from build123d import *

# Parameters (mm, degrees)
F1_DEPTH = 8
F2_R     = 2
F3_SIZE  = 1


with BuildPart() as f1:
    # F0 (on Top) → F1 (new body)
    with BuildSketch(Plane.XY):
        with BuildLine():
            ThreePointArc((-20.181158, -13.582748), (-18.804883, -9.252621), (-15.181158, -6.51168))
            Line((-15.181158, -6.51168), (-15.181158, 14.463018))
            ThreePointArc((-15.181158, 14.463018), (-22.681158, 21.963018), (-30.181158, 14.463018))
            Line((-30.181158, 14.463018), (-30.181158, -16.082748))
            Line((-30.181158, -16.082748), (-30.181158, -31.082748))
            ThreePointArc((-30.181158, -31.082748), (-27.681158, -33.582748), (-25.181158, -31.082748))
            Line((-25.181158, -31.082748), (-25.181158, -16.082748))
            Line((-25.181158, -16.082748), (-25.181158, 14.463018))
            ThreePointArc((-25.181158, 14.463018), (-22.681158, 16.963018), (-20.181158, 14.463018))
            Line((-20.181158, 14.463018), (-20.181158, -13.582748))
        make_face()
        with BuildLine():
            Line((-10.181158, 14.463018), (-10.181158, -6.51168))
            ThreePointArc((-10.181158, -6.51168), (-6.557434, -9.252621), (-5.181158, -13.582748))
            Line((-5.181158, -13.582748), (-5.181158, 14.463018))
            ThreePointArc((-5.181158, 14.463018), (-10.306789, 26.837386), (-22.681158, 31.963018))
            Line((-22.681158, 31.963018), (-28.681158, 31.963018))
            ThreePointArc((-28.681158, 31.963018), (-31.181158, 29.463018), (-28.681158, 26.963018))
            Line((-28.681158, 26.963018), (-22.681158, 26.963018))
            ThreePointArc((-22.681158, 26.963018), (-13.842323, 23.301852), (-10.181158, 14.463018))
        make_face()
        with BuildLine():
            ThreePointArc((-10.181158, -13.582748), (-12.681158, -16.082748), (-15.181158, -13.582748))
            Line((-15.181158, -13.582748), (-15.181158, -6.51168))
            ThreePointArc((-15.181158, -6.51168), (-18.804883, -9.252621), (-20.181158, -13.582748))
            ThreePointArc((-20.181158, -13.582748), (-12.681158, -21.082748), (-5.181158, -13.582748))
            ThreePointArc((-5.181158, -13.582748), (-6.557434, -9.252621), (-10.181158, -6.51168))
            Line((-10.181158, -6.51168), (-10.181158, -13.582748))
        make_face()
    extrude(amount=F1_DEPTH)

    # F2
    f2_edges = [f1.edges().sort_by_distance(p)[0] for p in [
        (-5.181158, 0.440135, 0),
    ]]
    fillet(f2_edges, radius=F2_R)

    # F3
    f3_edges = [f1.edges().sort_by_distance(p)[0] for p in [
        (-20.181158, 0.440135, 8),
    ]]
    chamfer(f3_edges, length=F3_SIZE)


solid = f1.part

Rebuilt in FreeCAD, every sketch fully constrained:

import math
import FreeCAD as App
import Part
import Sketcher

V = App.Vector
Q = App.Units.Quantity


def edges_at(feature, points):
    """Names of the edges that pass closest to the given points."""
    edges = feature.Shape.Edges
    near = lambda p: min(range(len(edges)), key=lambda i: edges[i].distToShape(Part.Vertex(*p))[0])
    return sorted({f"Edge{near(p) + 1}" for p in points})

doc = App.newDocument("Part")
params = doc.addObject("Spreadsheet::Sheet", "Params")
for row, (alias, value) in enumerate([
    ("sketch1_radius", "7.5 mm"),
    ("sketch1_width", "6 mm"),
    ("pad1_length", "8 mm"),
    ("fillet_radius", "2 mm"),
    ("chamfer_size", "1 mm"),
], start=1):
    params.set(f"A{row}", alias)
    params.set(f"B{row}", "=" + value)
    params.setAlias(f"B{row}", alias)

body = doc.addObject("PartDesign::Body", "Body")

# Sketch on XY plane
sketch1 = body.newObject("Sketcher::SketchObject", "Sketch")
sketch1.AttachmentSupport = (doc.getObject("XY_Plane"), [""])
sketch1.MapMode = "FlatFace"
sketch1.addGeometry(Part.ArcOfCircle(Part.Circle(V(-22.7, 14.5, 0), V(0, 0, 1), 7.5), math.radians(0), math.radians(180)), False)
sketch1.addGeometry(Part.LineSegment(V(-30.2, 14.5, 0), V(-30.2, -31.1, 0)), False)
sketch1.addGeometry(Part.ArcOfCircle(Part.Circle(V(-27.7, -31.1, 0), V(0, 0, 1), 2.5), math.radians(180), math.radians(360)), False)
sketch1.addGeometry(Part.LineSegment(V(-25.2, -31.1, 0), V(-25.2, 14.5, 0)), False)
sketch1.addGeometry(Part.ArcOfCircle(Part.Circle(V(-22.7, 14.5, 0), V(0, 0, 1), 2.5), math.radians(0), math.radians(180)), False)
sketch1.addGeometry(Part.LineSegment(V(-20.2, 14.5, 0), V(-20.2, -13.6, 0)), False)
sketch1.addGeometry(Part.ArcOfCircle(Part.Circle(V(-12.7, -13.6, 0), V(0, 0, 1), 7.5), math.radians(180), math.radians(360)), False)
sketch1.addGeometry(Part.LineSegment(V(-5.2, -13.6, 0), V(-5.2, 14.5, 0)), False)
sketch1.addGeometry(Part.ArcOfCircle(Part.Circle(V(-22.7, 14.5, 0), V(0, 0, 1), 17.5), math.radians(0), math.radians(90)), False)
sketch1.addGeometry(Part.LineSegment(V(-22.7, 32, 0), V(-28.7, 32, 0)), False)
sketch1.addGeometry(Part.ArcOfCircle(Part.Circle(V(-28.7, 29.5, 0), V(0, 0, 1), 2.5), math.radians(90), math.radians(270)), False)
sketch1.addGeometry(Part.LineSegment(V(-28.7, 27, 0), V(-22.7, 27, 0)), False)
sketch1.addGeometry(Part.ArcOfCircle(Part.Circle(V(-22.7, 14.5, 0), V(0, 0, 1), 12.5), math.radians(0), math.radians(90)), False)
sketch1.addGeometry(Part.LineSegment(V(-10.2, 14.5, 0), V(-10.2, -13.6, 0)), False)
sketch1.addGeometry(Part.ArcOfCircle(Part.Circle(V(-12.7, -13.6, 0), V(0, 0, 1), 2.5), math.radians(180), math.radians(360)), False)
sketch1.addGeometry(Part.LineSegment(V(-15.2, -13.6, 0), V(-15.2, 14.5, 0)), False)
sketch1.addConstraint(Sketcher.Constraint("Tangent", 0, 2, 1, 1))
sketch1.addConstraint(Sketcher.Constraint("Tangent", 1, 2, 2, 1))
sketch1.addConstraint(Sketcher.Constraint("Tangent", 2, 2, 3, 1))
sketch1.addConstraint(Sketcher.Constraint("Tangent", 3, 2, 4, 2))
sketch1.addConstraint(Sketcher.Constraint("Tangent", 4, 1, 5, 1))
sketch1.addConstraint(Sketcher.Constraint("Tangent", 5, 2, 6, 1))
sketch1.addConstraint(Sketcher.Constraint("Tangent", 6, 2, 7, 1))
sketch1.addConstraint(Sketcher.Constraint("Tangent", 7, 2, 8, 1))
sketch1.addConstraint(Sketcher.Constraint("Tangent", 8, 2, 9, 1))
sketch1.addConstraint(Sketcher.Constraint("Tangent", 9, 2, 10, 1))
sketch1.addConstraint(Sketcher.Constraint("Tangent", 10, 2, 11, 1))
sketch1.addConstraint(Sketcher.Constraint("Tangent", 11, 2, 12, 2))
sketch1.addConstraint(Sketcher.Constraint("Tangent", 12, 1, 13, 1))
sketch1.addConstraint(Sketcher.Constraint("Tangent", 13, 2, 14, 2))
sketch1.addConstraint(Sketcher.Constraint("Tangent", 14, 1, 15, 1))
sketch1.addConstraint(Sketcher.Constraint("Tangent", 15, 2, 0, 1))
sketch1.addConstraint(Sketcher.Constraint("Vertical", 1))
sketch1.addConstraint(Sketcher.Constraint("Vertical", 3))
sketch1.addConstraint(Sketcher.Constraint("Vertical", 5))
sketch1.addConstraint(Sketcher.Constraint("Vertical", 7))
sketch1.addConstraint(Sketcher.Constraint("Horizontal", 9))
sketch1.addConstraint(Sketcher.Constraint("Horizontal", 11))
sketch1.addConstraint(Sketcher.Constraint("Vertical", 13))
sketch1.addConstraint(Sketcher.Constraint("Vertical", 15))
sketch1.addConstraint(Sketcher.Constraint("Coincident", 4, 3, 0, 3))
sketch1.addConstraint(Sketcher.Constraint("Coincident", 8, 3, 0, 3))
sketch1.addConstraint(Sketcher.Constraint("Coincident", 12, 3, 0, 3))
sketch1.addConstraint(Sketcher.Constraint("Coincident", 14, 3, 6, 3))
sketch1.addConstraint(Sketcher.Constraint("Equal", 2, 4))
sketch1.addConstraint(Sketcher.Constraint("Equal", 0, 6))
sketch1.addConstraint(Sketcher.Constraint("Radius", 0, Q("7.5 mm")))
sketch1.addConstraint(Sketcher.Constraint("DistanceX", 9, 2, 9, 1, Q("6 mm")))
sketch1.addConstraint(Sketcher.Constraint("DistanceY", 2, 3, 6, 3, Q("17.5 mm")))
sketch1.addConstraint(Sketcher.Constraint("DistanceY", 1, 2, 1, 1, Q("45.545766 mm")))
sketch1.addConstraint(Sketcher.Constraint("DistanceX", 0, 3, -1, 1, Q("22.681158 mm")))
sketch1.addConstraint(Sketcher.Constraint("DistanceY", -1, 1, 10, 3, Q("29.463018 mm")))
sketch1.setExpression("Constraints[30]", "Params.sketch1_radius")
sketch1.setExpression("Constraints[31]", "Params.sketch1_width")
pad1 = body.newObject("PartDesign::Pad", "Pad")
pad1.Profile = sketch1
pad1.setExpression("Length", "Params.pad1_length")
doc.recompute()

fillet = body.newObject("PartDesign::Fillet", "Fillet")
fillet.Base = (pad1, edges_at(pad1, [(-5.181, 0.44, 0)]))
fillet.setExpression("Radius", "Params.fillet_radius")
doc.recompute()

chamfer = body.newObject("PartDesign::Chamfer", "Chamfer")
chamfer.Base = (fillet, edges_at(fillet, [(-20.181, 0.44, 8)]))
chamfer.setExpression("Size", "Params.chamfer_size")

doc.recompute()
